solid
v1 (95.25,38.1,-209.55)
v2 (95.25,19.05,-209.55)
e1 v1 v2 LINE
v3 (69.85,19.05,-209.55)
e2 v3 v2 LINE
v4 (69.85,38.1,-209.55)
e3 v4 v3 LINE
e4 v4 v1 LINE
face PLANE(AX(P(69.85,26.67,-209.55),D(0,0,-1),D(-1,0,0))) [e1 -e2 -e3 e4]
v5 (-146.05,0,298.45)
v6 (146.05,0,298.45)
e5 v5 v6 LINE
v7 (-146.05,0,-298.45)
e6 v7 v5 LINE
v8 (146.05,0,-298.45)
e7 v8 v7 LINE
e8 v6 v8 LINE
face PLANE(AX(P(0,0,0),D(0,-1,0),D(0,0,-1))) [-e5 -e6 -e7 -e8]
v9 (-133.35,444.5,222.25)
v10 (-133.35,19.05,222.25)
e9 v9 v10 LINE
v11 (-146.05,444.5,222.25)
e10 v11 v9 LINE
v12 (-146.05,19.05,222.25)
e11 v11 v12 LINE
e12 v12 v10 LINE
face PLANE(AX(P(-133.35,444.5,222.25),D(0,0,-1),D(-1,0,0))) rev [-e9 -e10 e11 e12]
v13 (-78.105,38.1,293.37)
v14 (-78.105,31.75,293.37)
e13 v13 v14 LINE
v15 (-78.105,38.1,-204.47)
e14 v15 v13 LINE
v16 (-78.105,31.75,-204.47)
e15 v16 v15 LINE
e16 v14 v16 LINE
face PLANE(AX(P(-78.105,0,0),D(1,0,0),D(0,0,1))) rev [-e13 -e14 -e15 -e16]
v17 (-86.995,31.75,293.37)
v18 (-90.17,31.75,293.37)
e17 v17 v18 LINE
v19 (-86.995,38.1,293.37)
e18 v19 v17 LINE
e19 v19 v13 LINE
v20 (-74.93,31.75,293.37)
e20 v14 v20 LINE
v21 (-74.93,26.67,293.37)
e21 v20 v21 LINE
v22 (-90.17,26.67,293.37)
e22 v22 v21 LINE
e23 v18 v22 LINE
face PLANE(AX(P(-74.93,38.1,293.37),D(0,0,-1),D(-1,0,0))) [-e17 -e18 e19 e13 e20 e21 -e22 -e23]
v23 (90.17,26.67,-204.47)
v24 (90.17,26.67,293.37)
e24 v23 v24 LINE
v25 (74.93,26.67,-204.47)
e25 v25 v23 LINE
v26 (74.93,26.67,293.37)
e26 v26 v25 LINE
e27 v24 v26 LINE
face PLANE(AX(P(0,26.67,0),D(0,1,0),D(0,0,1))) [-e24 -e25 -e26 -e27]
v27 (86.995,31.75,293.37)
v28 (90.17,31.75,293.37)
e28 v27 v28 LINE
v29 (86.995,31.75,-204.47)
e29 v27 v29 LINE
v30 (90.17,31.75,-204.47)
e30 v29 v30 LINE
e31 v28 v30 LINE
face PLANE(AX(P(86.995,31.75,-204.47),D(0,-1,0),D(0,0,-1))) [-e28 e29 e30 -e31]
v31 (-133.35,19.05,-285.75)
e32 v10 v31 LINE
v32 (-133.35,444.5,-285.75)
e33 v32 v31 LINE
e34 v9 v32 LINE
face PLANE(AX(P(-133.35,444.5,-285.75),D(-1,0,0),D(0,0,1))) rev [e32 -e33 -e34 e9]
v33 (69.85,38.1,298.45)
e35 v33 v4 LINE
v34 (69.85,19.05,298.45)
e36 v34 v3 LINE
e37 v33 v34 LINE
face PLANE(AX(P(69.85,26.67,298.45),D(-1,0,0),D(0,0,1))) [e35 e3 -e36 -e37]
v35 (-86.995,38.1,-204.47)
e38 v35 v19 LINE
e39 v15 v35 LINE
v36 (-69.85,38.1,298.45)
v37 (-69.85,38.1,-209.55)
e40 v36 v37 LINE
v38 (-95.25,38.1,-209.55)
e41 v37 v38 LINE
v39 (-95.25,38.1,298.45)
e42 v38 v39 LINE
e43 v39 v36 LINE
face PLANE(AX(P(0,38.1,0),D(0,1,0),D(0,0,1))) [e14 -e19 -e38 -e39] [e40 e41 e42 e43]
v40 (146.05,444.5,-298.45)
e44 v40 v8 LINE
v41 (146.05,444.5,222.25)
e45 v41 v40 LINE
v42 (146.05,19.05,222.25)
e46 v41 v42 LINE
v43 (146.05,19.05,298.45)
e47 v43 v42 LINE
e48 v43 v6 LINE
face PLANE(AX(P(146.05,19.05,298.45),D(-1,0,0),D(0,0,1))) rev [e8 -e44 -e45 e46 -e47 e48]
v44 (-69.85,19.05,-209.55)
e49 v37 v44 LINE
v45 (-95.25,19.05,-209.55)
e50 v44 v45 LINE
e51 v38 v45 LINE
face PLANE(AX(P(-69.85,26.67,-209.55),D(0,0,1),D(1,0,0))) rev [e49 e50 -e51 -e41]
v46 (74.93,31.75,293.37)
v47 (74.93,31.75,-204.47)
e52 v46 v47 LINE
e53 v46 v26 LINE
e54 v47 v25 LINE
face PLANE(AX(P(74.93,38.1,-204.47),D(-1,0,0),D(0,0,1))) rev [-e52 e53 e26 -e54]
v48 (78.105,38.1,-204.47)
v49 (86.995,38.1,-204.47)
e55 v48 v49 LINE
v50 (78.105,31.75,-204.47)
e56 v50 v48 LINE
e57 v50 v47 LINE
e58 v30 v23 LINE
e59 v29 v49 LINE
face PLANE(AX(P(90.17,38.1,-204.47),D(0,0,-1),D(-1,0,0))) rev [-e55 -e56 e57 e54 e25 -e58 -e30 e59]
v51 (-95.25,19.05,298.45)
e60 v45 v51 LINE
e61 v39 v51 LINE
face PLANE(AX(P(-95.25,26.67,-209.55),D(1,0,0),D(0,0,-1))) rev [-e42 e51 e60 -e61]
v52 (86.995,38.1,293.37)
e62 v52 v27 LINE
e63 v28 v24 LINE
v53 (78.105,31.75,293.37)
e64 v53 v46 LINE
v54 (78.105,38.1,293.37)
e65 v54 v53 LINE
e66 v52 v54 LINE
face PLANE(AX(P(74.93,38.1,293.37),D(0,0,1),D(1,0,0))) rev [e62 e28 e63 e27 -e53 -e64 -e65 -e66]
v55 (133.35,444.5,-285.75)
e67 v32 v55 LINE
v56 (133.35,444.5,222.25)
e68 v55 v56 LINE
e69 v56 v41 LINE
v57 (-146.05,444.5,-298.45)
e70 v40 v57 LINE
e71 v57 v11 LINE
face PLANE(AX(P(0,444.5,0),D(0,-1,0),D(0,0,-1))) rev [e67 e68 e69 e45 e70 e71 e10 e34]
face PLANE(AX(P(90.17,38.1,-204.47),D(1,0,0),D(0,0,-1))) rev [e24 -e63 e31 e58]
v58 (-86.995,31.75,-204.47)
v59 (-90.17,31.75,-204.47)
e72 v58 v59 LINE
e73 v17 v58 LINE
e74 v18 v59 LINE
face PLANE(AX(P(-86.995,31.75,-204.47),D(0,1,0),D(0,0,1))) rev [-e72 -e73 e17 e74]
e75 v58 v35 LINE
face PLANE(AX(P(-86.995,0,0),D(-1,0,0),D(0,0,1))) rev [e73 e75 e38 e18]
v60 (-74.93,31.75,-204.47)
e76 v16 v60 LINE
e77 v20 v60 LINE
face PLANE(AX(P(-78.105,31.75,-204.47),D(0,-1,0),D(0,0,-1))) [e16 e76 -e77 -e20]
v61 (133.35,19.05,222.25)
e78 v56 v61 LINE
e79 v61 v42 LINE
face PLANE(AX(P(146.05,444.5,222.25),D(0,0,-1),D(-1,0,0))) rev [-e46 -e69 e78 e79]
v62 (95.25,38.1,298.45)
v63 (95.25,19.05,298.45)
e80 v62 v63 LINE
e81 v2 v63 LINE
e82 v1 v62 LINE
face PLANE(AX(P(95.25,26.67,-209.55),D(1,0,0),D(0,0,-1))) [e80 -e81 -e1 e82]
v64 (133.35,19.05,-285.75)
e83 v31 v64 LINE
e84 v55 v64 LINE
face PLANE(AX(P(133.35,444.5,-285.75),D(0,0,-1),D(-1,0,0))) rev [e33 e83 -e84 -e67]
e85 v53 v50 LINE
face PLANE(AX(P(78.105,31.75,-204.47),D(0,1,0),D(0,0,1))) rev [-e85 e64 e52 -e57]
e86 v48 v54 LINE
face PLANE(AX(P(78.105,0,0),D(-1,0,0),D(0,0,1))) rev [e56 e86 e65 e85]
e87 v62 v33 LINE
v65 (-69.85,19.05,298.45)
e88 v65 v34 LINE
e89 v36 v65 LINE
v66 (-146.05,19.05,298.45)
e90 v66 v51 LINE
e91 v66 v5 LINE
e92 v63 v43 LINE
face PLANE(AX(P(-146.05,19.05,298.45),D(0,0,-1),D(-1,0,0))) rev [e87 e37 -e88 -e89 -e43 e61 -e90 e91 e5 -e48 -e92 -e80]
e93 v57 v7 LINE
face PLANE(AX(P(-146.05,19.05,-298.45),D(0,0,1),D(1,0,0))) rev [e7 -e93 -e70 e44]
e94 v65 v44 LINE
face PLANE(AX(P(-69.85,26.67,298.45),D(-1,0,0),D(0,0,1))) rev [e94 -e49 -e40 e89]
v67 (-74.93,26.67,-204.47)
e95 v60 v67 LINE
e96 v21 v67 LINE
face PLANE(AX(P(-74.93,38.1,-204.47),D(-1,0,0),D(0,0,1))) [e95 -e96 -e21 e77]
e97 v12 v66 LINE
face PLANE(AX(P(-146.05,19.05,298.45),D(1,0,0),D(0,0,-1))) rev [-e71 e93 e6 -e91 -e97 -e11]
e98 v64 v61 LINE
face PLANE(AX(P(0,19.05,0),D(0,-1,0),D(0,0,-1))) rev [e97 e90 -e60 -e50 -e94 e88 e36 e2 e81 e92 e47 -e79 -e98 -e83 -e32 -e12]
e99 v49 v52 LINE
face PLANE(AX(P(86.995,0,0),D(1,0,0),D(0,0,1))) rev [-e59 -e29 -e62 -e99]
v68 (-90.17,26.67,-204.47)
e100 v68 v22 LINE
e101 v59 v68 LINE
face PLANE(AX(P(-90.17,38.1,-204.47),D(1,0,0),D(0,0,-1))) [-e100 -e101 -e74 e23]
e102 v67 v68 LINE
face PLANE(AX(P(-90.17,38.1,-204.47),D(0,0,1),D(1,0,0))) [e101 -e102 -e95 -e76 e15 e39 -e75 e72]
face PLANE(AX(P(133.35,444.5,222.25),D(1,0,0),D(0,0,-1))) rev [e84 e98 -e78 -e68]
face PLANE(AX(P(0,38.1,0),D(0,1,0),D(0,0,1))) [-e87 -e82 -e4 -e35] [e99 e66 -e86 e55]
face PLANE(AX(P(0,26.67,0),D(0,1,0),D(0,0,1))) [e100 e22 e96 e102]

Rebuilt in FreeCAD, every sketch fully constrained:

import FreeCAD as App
import Part
import Sketcher

V = App.Vector
Q = App.Units.Quantity


def add_polygon(sketch, points):
    """Adds a closed chain of lines whose ends are joined by coincident constraints."""
    first, n = sketch.GeometryCount, len(points)
    for a, b in zip(points, points[1:] + points[:1]):
        sketch.addGeometry(Part.LineSegment(App.Vector(*a, 0), App.Vector(*b, 0)), False)
    for i in range(n):
        sketch.addConstraint(Sketcher.Constraint("Coincident", first + i, 2, first + (i + 1) % n, 1))

doc = App.newDocument("Part")
body = doc.addObject("PartDesign::Body", "Body")

# Sketch on XZ plane
sketch1 = doc.addObject("Sketcher::SketchObject", "Sketch")
body.addObject(sketch1)
sketch1.AttachmentSupport = (doc.XZ_Plane, [""])
sketch1.MapMode = "FlatFace"
add_polygon(sketch1, [(-146, -298), (-146, 298), (146, 298), (146, -298)])  # lines 0-3
sketch1.addConstraint([
    Sketcher.Constraint("Vertical", 0),
    Sketcher.Constraint("Horizontal", 1),
    Sketcher.Constraint("Vertical", 2),
    Sketcher.Constraint("Horizontal", 3),
    Sketcher.Constraint("Symmetric", 0, 2, 2, 2, -1, 1),
    Sketcher.Constraint("DistanceX", 1, 1, 1, 2, Q("11.5 in")),
    Sketcher.Constraint("DistanceY", 0, 1, 0, 2, Q("23.5 in")),
])
pad1 = doc.addObject("PartDesign::Pad", "Pad")
body.addObject(pad1)
pad1.Profile = sketch1
pad1.Length = Q("0.75 in")
pad1.Reversed = True

# Sketch on XZ plane
sketch2 = doc.addObject("Sketcher::SketchObject", "Sketch001")
body.addObject(sketch2)
sketch2.AttachmentSupport = (doc.XZ_Plane, [""])
sketch2.MapMode = "FlatFace"
sketch2.AttachmentOffset = App.Placement(V(0, 0, -0.75 * 25.4), App.Rotation())
add_polygon(sketch2, [(-146, -298), (-146, 222), (-133, 222), (-133, -286), (133, -286), (133, 222), (146, 222), (146, -298)])  # lines 0-7
sketch2.addConstraint([
    Sketcher.Constraint("Vertical", 0),
    Sketcher.Constraint("Horizontal", 1),
    Sketcher.Constraint("Vertical", 2),
    Sketcher.Constraint("Horizontal", 3),
    Sketcher.Constraint("Vertical", 4),
    Sketcher.Constraint("Horizontal", 5),
    Sketcher.Constraint("Vertical", 6),
    Sketcher.Constraint("Horizontal", 7),
    Sketcher.Constraint("Symmetric", 1, 2, 4, 2, -2),
    Sketcher.Constraint("Equal", 1, 5),
    Sketcher.Constraint("DistanceY", 2, 2, 2, 1, Q("20 in")),
    Sketcher.Constraint("DistanceX", 1, 1, 1, 2, Q("0.5 in")),
    Sketcher.Constraint("DistanceX", 3, 1, 3, 2, Q("10.5 in")),
    Sketcher.Constraint("DistanceY", 0, 1, 0, 2, Q("20.5 in")),
    Sketcher.Constraint("DistanceY", -1, 1, 0, 2, Q("8.75 in")),
])
pad2 = doc.addObject("PartDesign::Pad", "Pad001")
body.addObject(pad2)
pad2.Profile = sketch2
pad2.Length = Q("16.75 in")
pad2.Reversed = True

# Sketch on XZ plane
sketch3 = doc.addObject("Sketcher::SketchObject", "Sketch002")
body.addObject(sketch3)
sketch3.AttachmentSupport = (doc.XZ_Plane, [""])
sketch3.MapMode = "FlatFace"
sketch3.AttachmentOffset = App.Placement(V(0, 0, -0.75 * 25.4), App.Rotation())
add_polygon(sketch3, [(-95, -210), (-95, 298), (-70, 298), (-70, -210)])  # lines 0-3
sketch3.addConstraint([
    Sketcher.Constraint("Vertical", 0),
    Sketcher.Constraint("Horizontal", 1),
    Sketcher.Constraint("Vertical", 2),
    Sketcher.Constraint("Horizontal", 3),
    Sketcher.Constraint("DistanceX", 1, 1, 1, 2, Q("1 in")),
    Sketcher.Constraint("DistanceY", 0, 1, 0, 2, Q("20 in")),
    Sketcher.Constraint("DistanceX", 0, 2, -1, 1, Q("3.75 in")),
    Sketcher.Constraint("DistanceY", -1, 1, 0, 2, Q("11.75 in")),
])
pad3 = doc.addObject("PartDesign::Pad", "Pad002")
body.addObject(pad3)
pad3.Profile = sketch3
pad3.Length = Q("0.3 in")
pad3.Reversed = True

# Sketch on XZ plane
sketch4 = doc.addObject("Sketcher::SketchObject", "Sketch003")
body.addObject(sketch4)
sketch4.AttachmentSupport = (doc.XZ_Plane, [""])
sketch4.MapMode = "FlatFace"
sketch4.AttachmentOffset = App.Placement(V(0, 0, -1.05 * 25.4), App.Rotation())
add_polygon(sketch4, [(-95, -210), (-95, 298), (-70, 298), (-70, -210)])  # lines 0-3
add_polygon(sketch4, [(-75, 293), (-90, 293), (-90, -204), (-75, -204)])  # lines 4-7
sketch4.addConstraint([
    Sketcher.Constraint("Vertical", 0),
    Sketcher.Constraint("Horizontal", 1),
    Sketcher.Constraint("Vertical", 2),
    Sketcher.Constraint("Horizontal", 3),
    Sketcher.Constraint("Horizontal", 4),
    Sketcher.Constraint("Vertical", 5),
    Sketcher.Constraint("Horizontal", 6),
    Sketcher.Constraint("Vertical", 7),
    Sketcher.Constraint("DistanceX", 1, 1, 1, 2, Q("1 in")),
    Sketcher.Constraint("DistanceY", 0, 1, 0, 2, Q("20 in")),
    Sketcher.Constraint("DistanceX", 4, 2, 4, 1, Q("0.6 in")),
    Sketcher.Constraint("DistanceY", 5, 2, 5, 1, Q("19.6 in")),
    Sketcher.Constraint("DistanceX", 0, 2, 4, 2, Q("0.2 in")),
    Sketcher.Constraint("DistanceY", 4, 2, 0, 2, Q("0.2 in")),
    Sketcher.Constraint("DistanceX", 0, 2, -1, 1, Q("3.75 in")),
    Sketcher.Constraint("DistanceY", -1, 1, 0, 2, Q("11.75 in")),
])
pad4 = doc.addObject("PartDesign::Pad", "Pad003")
body.addObject(pad4)
pad4.Profile = sketch4
pad4.Length = Q("0.45 in")
pad4.Reversed = True

# Sketch on YZ plane
sketch5 = doc.addObject("Sketcher::SketchObject", "Sketch004")
body.addObject(sketch5)
sketch5.AttachmentSupport = (doc.YZ_Plane, [""])
sketch5.MapMode = "FlatFace"
sketch5.AttachmentOffset = App.Placement(V(0, 0, -3.55 * 25.4), App.Rotation())
add_polygon(sketch5, [(38, 293), (32, 293), (32, -204), (38, -204)])  # lines 0-3
sketch5.addConstraint([
    Sketcher.Constraint("Horizontal", 0),
    Sketcher.Constraint("Vertical", 1),
    Sketcher.Constraint("Horizontal", 2),
    Sketcher.Constraint("Vertical", 3),
    Sketcher.Constraint("DistanceY", 1, 2, 1, 1, Q("19.6 in")),
    Sketcher.Constraint("DistanceX", 0, 2, 0, 1, Q("0.25 in")),
    Sketcher.Constraint("DistanceX", -1, 1, 2, 2, Q("1.5 in")),
    Sketcher.Constraint("DistanceY", -1, 1, 0, 2, Q("11.55 in")),
])
pad5 = doc.addObject("PartDesign::Pad", "Pad004")
body.addObject(pad5)
pad5.Profile = sketch5
pad5.Length = Q("0.125 in")
doc.recompute()

datumplane = doc.addObject("PartDesign::Plane", "DatumPlane")
body.addObject(datumplane)
datumplane.AttachmentSupport = (doc.YZ_Plane, [""])
datumplane.MapMode = "FlatFace"
datumplane.AttachmentOffset = App.Placement(V(0, 0, -3.25 * 25.4), App.Rotation())
mirrored = doc.addObject("PartDesign::Mirrored", "Mirrored")
body.addObject(mirrored)
mirrored.Originals = [pad5]
mirrored.MirrorPlane = (datumplane, [""])
body.Tip = mirrored
doc.recompute()

mirrored2 = doc.addObject("PartDesign::Mirrored", "Mirrored001")
body.addObject(mirrored2)
mirrored2.Originals = [pad1, pad3, pad4, pad5]
mirrored2.MirrorPlane = (doc.YZ_Plane, [""])
body.Tip = mirrored2

# Sketch on YZ plane
sketch6 = doc.addObject("Sketcher::SketchObject", "Sketch005")
body.addObject(sketch6)
sketch6.AttachmentSupport = (doc.YZ_Plane, [""])
sketch6.MapMode = "FlatFace"
sketch6.AttachmentOffset = App.Placement(V(0, 0, 2.95 * 25.4), App.Rotation())
add_polygon(sketch6, [(38, 293), (32, 293), (32, -204), (38, -204)])  # lines 0-3
sketch6.addConstraint([
    Sketcher.Constraint("Horizontal", 0),
    Sketcher.Constraint("Vertical", 1),
    Sketcher.Constraint("Horizontal", 2),
    Sketcher.Constraint("Vertical", 3),
    Sketcher.Constraint("DistanceY", 1, 2, 1, 1, Q("19.6 in")),
    Sketcher.Constraint("DistanceX", 0, 2, 0, 1, Q("0.25 in")),
    Sketcher.Constraint("DistanceX", -1, 1, 2, 2, Q("1.5 in")),
    Sketcher.Constraint("DistanceY", -1, 1, 0, 2, Q("11.55 in")),
])
pad6 = doc.addObject("PartDesign::Pad", "Pad005")
body.addObject(pad6)
pad6.Profile = sketch6
pad6.Length = Q("0.125 in")

doc.recompute()
